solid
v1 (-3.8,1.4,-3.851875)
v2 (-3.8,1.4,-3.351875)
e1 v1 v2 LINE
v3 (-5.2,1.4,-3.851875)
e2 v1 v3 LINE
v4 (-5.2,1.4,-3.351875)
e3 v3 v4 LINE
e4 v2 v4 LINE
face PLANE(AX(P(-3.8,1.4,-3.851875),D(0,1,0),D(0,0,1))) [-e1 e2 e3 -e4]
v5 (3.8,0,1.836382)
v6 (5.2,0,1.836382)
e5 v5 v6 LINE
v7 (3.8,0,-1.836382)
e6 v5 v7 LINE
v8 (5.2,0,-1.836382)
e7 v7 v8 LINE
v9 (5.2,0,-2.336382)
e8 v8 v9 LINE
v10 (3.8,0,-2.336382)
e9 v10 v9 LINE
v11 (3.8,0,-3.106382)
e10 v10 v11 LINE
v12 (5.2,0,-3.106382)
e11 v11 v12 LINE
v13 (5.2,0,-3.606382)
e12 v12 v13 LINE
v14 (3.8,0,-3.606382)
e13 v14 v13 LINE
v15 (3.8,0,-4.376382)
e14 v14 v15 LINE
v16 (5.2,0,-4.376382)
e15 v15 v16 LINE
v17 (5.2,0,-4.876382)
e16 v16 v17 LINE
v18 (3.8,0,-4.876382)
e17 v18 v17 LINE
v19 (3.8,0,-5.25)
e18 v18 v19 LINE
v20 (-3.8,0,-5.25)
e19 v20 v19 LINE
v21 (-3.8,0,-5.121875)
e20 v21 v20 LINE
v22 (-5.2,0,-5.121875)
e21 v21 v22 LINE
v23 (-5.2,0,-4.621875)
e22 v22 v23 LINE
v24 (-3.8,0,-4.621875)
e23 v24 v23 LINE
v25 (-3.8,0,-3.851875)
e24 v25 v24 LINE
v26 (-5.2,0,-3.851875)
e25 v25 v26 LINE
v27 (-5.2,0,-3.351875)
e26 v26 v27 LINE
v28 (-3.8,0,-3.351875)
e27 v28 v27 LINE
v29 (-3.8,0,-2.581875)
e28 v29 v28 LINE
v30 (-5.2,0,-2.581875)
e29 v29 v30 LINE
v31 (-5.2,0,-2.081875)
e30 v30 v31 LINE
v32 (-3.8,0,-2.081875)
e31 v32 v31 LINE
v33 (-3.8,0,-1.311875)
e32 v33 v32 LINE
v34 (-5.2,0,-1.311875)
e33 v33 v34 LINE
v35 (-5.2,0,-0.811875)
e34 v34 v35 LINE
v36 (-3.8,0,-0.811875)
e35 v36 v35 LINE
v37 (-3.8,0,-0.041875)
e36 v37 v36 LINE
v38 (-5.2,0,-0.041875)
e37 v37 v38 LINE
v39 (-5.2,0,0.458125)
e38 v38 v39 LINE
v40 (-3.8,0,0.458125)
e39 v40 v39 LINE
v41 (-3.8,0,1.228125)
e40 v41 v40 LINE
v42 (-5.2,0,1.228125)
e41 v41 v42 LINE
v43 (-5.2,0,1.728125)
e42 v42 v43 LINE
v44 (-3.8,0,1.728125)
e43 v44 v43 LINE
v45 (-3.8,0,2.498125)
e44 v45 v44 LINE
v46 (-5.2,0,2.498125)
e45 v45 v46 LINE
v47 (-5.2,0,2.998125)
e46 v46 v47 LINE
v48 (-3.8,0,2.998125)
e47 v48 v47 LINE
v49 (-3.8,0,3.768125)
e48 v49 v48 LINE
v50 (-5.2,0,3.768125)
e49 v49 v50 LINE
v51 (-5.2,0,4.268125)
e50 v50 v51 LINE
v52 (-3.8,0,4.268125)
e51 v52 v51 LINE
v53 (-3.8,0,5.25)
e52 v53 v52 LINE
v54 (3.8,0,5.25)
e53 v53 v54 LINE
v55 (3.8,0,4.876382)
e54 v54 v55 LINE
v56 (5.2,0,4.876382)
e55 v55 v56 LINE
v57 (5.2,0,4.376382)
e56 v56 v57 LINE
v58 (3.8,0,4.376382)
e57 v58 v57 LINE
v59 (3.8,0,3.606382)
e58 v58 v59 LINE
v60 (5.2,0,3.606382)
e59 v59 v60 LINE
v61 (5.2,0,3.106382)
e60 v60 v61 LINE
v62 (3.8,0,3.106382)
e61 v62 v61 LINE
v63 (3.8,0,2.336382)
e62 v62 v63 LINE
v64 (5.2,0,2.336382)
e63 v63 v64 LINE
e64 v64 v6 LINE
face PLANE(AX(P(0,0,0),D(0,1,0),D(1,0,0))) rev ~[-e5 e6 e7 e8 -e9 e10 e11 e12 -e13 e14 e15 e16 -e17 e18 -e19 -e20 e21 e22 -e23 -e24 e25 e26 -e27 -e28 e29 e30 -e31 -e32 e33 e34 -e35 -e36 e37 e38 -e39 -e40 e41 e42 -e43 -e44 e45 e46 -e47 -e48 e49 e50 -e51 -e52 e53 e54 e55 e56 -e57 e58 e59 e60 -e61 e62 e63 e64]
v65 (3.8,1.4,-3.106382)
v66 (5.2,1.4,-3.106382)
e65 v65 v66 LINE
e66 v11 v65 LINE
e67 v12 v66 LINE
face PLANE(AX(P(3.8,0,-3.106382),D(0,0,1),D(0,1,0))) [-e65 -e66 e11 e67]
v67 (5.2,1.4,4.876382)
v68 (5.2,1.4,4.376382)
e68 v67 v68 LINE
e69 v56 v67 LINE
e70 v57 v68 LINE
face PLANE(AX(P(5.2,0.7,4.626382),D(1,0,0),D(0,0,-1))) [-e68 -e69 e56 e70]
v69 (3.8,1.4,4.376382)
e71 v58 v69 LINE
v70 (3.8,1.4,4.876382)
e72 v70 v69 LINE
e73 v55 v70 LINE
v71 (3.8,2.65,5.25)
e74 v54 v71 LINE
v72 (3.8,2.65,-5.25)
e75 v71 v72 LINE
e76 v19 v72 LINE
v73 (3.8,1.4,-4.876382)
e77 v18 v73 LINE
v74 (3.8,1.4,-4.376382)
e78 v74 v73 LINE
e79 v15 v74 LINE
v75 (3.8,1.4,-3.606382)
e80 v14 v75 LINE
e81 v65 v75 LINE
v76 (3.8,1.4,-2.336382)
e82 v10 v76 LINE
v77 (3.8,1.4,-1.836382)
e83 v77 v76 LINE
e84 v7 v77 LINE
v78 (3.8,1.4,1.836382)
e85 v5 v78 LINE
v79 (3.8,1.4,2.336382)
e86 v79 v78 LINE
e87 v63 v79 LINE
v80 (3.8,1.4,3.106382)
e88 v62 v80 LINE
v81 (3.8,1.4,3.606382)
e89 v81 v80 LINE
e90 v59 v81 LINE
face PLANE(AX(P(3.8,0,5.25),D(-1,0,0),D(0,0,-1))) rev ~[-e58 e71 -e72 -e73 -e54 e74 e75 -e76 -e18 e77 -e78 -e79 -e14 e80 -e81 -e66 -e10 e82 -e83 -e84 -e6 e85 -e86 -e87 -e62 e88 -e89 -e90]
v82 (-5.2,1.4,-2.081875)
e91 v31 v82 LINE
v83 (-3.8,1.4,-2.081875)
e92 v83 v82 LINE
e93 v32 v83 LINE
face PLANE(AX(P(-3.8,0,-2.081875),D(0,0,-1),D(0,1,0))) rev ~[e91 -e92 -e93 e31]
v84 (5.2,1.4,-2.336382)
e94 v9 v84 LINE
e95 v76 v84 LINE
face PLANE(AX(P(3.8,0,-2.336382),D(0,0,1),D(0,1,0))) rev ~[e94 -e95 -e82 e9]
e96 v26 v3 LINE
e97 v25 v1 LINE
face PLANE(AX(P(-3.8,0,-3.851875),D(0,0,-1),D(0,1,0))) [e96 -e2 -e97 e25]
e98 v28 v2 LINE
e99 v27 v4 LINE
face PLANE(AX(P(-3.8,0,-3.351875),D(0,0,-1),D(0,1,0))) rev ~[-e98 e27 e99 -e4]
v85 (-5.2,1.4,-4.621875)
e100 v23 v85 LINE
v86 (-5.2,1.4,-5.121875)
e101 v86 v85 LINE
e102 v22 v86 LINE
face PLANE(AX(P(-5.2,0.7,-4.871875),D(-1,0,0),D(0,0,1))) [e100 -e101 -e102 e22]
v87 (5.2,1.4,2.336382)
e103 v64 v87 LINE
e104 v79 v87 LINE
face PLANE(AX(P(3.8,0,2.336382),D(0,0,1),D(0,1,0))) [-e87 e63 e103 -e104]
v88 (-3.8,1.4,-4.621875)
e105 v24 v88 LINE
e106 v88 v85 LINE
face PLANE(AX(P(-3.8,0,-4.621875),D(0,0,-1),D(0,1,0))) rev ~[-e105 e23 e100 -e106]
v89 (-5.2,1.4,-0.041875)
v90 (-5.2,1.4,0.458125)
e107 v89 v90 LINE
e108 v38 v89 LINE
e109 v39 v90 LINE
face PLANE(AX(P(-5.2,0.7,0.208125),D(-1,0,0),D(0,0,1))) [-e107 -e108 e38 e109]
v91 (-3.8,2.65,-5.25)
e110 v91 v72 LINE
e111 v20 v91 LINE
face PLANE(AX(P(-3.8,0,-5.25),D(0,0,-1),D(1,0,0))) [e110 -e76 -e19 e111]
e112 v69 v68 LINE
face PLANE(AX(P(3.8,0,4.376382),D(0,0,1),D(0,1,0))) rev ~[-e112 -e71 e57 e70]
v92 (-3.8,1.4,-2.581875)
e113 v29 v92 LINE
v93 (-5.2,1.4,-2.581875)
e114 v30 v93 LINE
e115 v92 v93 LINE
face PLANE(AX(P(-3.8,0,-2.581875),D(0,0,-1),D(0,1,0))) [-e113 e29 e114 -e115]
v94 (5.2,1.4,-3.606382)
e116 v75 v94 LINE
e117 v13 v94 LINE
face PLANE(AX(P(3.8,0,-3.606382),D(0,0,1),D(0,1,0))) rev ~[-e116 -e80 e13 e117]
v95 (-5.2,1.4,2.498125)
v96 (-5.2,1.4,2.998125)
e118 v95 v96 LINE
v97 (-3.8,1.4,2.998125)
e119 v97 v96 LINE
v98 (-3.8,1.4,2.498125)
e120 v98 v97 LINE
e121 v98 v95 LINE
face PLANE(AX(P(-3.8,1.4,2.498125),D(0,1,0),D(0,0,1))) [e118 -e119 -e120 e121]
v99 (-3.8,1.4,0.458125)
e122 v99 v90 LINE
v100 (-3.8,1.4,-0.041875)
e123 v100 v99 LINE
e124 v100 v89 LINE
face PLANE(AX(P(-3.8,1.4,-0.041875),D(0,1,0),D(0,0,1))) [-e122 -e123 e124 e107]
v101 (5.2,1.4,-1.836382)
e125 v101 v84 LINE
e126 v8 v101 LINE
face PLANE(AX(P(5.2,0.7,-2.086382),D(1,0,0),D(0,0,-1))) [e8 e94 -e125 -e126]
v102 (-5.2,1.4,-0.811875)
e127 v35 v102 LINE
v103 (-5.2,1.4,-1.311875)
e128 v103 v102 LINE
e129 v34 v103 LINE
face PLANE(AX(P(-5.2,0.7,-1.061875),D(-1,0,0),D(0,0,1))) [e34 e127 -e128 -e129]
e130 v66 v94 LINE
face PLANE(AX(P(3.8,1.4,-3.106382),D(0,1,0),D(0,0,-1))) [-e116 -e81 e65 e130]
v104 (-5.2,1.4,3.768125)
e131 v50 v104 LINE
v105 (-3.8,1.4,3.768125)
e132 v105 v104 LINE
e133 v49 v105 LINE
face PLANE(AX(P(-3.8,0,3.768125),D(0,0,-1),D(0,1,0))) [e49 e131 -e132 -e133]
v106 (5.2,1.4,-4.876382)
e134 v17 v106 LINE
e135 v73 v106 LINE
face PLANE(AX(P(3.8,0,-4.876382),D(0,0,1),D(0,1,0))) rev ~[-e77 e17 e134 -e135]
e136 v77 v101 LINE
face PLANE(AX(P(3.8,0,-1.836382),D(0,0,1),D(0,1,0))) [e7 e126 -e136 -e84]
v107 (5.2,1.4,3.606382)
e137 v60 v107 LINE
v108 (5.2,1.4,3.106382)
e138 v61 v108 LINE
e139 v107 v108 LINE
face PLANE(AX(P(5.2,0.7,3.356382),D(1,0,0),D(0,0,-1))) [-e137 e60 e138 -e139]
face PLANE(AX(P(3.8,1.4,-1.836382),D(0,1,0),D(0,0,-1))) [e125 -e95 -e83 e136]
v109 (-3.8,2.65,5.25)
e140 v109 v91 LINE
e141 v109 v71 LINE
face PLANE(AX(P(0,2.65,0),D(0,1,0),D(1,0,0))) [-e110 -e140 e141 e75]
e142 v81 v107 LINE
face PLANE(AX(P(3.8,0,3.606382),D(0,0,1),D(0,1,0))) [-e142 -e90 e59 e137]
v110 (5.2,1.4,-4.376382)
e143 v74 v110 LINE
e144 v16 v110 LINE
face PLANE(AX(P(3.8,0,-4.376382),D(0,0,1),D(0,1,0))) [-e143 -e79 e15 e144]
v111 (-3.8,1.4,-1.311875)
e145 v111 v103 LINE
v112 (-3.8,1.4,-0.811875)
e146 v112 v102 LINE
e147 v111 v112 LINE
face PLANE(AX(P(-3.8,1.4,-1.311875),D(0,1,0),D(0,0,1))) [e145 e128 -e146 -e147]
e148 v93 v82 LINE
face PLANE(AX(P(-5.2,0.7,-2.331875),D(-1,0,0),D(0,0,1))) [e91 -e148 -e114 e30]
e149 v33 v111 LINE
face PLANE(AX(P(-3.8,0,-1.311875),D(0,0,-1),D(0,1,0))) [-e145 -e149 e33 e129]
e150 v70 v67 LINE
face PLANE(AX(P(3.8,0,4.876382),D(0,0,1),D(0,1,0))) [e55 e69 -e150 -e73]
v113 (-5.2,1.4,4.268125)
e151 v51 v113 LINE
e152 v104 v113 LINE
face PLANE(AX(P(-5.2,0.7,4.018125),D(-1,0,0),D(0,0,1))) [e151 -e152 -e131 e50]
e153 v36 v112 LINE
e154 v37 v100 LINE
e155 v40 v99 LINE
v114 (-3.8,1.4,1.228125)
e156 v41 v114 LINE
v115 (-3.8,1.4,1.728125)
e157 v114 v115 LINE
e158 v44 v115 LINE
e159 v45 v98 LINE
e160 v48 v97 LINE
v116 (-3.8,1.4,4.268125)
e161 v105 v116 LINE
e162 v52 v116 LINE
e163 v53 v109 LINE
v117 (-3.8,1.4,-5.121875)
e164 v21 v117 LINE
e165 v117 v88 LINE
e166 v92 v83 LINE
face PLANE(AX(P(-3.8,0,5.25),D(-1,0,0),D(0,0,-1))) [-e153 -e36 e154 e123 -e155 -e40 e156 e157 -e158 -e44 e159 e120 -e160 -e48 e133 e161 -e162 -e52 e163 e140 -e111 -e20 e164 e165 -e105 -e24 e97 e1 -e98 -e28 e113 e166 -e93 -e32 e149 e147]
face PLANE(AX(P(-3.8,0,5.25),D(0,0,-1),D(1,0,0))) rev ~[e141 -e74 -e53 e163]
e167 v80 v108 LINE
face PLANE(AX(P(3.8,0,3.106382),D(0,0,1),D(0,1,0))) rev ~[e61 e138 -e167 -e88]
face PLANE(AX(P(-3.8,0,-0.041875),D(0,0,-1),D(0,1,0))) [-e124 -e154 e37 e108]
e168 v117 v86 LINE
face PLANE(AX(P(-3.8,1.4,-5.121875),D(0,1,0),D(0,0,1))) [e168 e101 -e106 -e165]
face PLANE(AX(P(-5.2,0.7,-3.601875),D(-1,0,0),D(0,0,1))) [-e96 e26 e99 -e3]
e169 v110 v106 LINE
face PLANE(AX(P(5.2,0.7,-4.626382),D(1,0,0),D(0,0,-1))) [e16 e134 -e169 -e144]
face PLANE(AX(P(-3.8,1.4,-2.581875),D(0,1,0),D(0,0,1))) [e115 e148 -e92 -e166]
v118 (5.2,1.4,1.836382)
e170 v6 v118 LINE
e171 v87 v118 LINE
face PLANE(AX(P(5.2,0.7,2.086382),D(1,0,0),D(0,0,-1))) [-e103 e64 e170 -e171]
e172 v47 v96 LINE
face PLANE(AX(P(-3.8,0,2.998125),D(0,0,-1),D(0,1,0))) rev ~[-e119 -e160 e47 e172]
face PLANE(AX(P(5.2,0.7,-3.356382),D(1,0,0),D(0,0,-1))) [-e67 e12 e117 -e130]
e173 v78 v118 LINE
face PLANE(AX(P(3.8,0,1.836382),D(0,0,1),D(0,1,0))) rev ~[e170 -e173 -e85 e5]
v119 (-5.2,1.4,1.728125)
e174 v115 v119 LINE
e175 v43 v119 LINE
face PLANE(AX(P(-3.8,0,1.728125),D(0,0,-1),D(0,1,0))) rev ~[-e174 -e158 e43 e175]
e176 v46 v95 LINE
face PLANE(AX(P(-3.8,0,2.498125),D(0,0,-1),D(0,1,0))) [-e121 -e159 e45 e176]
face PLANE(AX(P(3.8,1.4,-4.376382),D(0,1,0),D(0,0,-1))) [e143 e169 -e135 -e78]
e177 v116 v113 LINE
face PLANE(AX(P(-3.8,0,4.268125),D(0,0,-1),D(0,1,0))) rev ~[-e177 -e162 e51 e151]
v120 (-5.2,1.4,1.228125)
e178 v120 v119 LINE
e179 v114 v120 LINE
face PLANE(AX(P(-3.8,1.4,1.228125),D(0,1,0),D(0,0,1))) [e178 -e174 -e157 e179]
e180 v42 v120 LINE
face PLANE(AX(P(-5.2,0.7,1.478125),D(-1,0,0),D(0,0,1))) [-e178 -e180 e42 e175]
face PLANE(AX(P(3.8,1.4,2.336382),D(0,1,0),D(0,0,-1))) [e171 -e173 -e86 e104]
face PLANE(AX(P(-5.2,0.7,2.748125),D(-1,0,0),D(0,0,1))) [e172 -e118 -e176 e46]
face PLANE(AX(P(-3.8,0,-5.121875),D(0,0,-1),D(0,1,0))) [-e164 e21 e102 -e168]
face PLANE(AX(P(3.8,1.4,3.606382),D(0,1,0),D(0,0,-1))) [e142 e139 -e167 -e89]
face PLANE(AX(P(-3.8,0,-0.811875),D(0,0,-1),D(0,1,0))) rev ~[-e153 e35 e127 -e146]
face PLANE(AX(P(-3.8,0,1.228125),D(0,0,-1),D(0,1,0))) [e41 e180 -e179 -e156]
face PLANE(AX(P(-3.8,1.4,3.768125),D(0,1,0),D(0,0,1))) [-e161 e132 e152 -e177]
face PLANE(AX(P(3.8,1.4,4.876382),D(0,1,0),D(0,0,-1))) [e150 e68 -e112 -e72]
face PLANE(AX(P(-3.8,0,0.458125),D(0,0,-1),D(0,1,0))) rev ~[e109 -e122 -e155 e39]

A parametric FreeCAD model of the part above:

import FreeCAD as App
import Part
import Sketcher

V = App.Vector
Q = App.Units.Quantity


def add_polygon(sketch, points):
    """Adds a closed chain of lines whose ends are joined by coincident constraints."""
    first, n = sketch.GeometryCount, len(points)
    for a, b in zip(points, points[1:] + points[:1]):
        sketch.addGeometry(Part.LineSegment(App.Vector(*a, 0), App.Vector(*b, 0)), False)
    for i in range(n):
        sketch.addConstraint(Sketcher.Constraint("Coincident", first + i, 2, first + (i + 1) % n, 1))

doc = App.newDocument("Part")
body = doc.addObject("PartDesign::Body", "Body")

# Sketch on XZ plane
sketch1 = doc.addObject("Sketcher::SketchObject", "Sketch")
body.addObject(sketch1)
sketch1.AttachmentSupport = (doc.XZ_Plane, [""])
sketch1.MapMode = "FlatFace"
add_polygon(sketch1, [(-4, -5), (-4, 5), (4, 5), (4, -5)])  # lines 0-3
sketch1.addConstraint(Sketcher.Constraint("Vertical", 0))
sketch1.addConstraint(Sketcher.Constraint("Horizontal", 1))
sketch1.addConstraint(Sketcher.Constraint("Vertical", 2))
sketch1.addConstraint(Sketcher.Constraint("Horizontal", 3))
sketch1.addConstraint(Sketcher.Constraint("Symmetric", 0, 2, 2, 2, -1, 1))
sketch1.addConstraint(Sketcher.Constraint("DistanceX", 1, 1, 1, 2, Q("7.6 mm")))
sketch1.addConstraint(Sketcher.Constraint("DistanceY", 0, 1, 0, 2, Q("10.5 mm")))
pad1 = doc.addObject("PartDesign::Pad", "Pad")
body.addObject(pad1)
pad1.Profile = sketch1
pad1.Length = 2.65
pad1.Reversed = True

# Sketch on YZ plane
sketch2 = doc.addObject("Sketcher::SketchObject", "Sketch001")
body.addObject(sketch2)
sketch2.AttachmentSupport = (doc.YZ_Plane, [""])
sketch2.MapMode = "FlatFace"
sketch2.AttachmentOffset = App.Placement(V(0, 0, -3.8), App.Rotation())
add_polygon(sketch2, [(1.4, -5.12), (0, -5.12), (0, -4.62), (1.4, -4.62)])  # lines 0-3
add_polygon(sketch2, [(1.4, -3.85), (0, -3.85), (0, -3.35), (1.4, -3.35)])  # lines 4-7
add_polygon(sketch2, [(1.4, -2.58), (0, -2.58), (0, -2.08), (1.4, -2.08)])  # lines 8-11
add_polygon(sketch2, [(1.4, -1.31), (0, -1.31), (0, -0.81), (1.4, -0.81)])  # lines 12-15
add_polygon(sketch2, [(1.4, -0.04), (0, -0.04), (0, 0.46), (1.4, 0.46)])  # lines 16-19
add_polygon(sketch2, [(1.4, 1.23), (0, 1.23), (0, 1.73), (1.4, 1.73)])  # lines 20-23
add_polygon(sketch2, [(1.4, 2.5), (0, 2.5), (0, 3), (1.4, 3)])  # lines 24-27
add_polygon(sketch2, [(1.4, 3.77), (0, 3.77), (0, 4.27), (1.4, 4.27)])  # lines 28-31
sketch2.addConstraint(Sketcher.Constraint("Horizontal", 0))
sketch2.addConstraint(Sketcher.Constraint("Vertical", 1))
sketch2.addConstraint(Sketcher.Constraint("Horizontal", 2))
sketch2.addConstraint(Sketcher.Constraint("Vertical", 3))
sketch2.addConstraint(Sketcher.Constraint("Horizontal", 4))
sketch2.addConstraint(Sketcher.Constraint("Vertical", 5))
sketch2.addConstraint(Sketcher.Constraint("Horizontal", 6))
sketch2.addConstraint(Sketcher.Constraint("Vertical", 7))
sketch2.addConstraint(Sketcher.Constraint("Horizontal", 8))
sketch2.addConstraint(Sketcher.Constraint("Vertical", 9))
sketch2.addConstraint(Sketcher.Constraint("Horizontal", 10))
sketch2.addConstraint(Sketcher.Constraint("Vertical", 11))
sketch2.addConstraint(Sketcher.Constraint("Horizontal", 12))
sketch2.addConstraint(Sketcher.Constraint("Vertical", 13))
sketch2.addConstraint(Sketcher.Constraint("Horizontal", 14))
sketch2.addConstraint(Sketcher.Constraint("Vertical", 15))
sketch2.addConstraint(Sketcher.Constraint("Horizontal", 16))
sketch2.addConstraint(Sketcher.Constraint("Vertical", 17))
sketch2.addConstraint(Sketcher.Constraint("Horizontal", 18))
sketch2.addConstraint(Sketcher.Constraint("Vertical", 19))
sketch2.addConstraint(Sketcher.Constraint("Horizontal", 20))
sketch2.addConstraint(Sketcher.Constraint("Vertical", 21))
sketch2.addConstraint(Sketcher.Constraint("Horizontal", 22))
sketch2.addConstraint(Sketcher.Constraint("Vertical", 23))
sketch2.addConstraint(Sketcher.Constraint("Horizontal", 24))
sketch2.addConstraint(Sketcher.Constraint("Vertical", 25))
sketch2.addConstraint(Sketcher.Constraint("Horizontal", 26))
sketch2.addConstraint(Sketcher.Constraint("Vertical", 27))
sketch2.addConstraint(Sketcher.Constraint("Horizontal", 28))
sketch2.addConstraint(Sketcher.Constraint("Vertical", 29))
sketch2.addConstraint(Sketcher.Constraint("Horizontal", 30))
sketch2.addConstraint(Sketcher.Constraint("Vertical", 31))
sketch2.addConstraint(Sketcher.Constraint("PointOnObject", 0, 2, -2))
sketch2.addConstraint(Sketcher.Constraint("PointOnObject", 4, 2, -2))
sketch2.addConstraint(Sketcher.Constraint("PointOnObject", 8, 2, -2))
sketch2.addConstraint(Sketcher.Constraint("PointOnObject", 12, 2, -2))
sketch2.addConstraint(Sketcher.Constraint("PointOnObject", 16, 2, -2))
sketch2.addConstraint(Sketcher.Constraint("PointOnObject", 20, 2, -2))
sketch2.addConstraint(Sketcher.Constraint("PointOnObject", 24, 2, -2))
sketch2.addConstraint(Sketcher.Constraint("PointOnObject", 28, 2, -2))
sketch2.addConstraint(Sketcher.Constraint("Vertical", 3, 2, 6, 2))
sketch2.addConstraint(Sketcher.Constraint("Vertical", 7, 2, 10, 2))
sketch2.addConstraint(Sketcher.Constraint("Vertical", 11, 2, 14, 2))
sketch2.addConstraint(Sketcher.Constraint("Vertical", 15, 2, 18, 2))
sketch2.addConstraint(Sketcher.Constraint("Vertical", 19, 2, 22, 2))
sketch2.addConstraint(Sketcher.Constraint("Vertical", 23, 2, 26, 2))
sketch2.addConstraint(Sketcher.Constraint("Vertical", 27, 2, 30, 2))
sketch2.addConstraint(Sketcher.Constraint("Equal", 3, 5))
sketch2.addConstraint(Sketcher.Constraint("Equal", 7, 9))
sketch2.addConstraint(Sketcher.Constraint("Equal", 11, 13))
sketch2.addConstraint(Sketcher.Constraint("Equal", 15, 17))
sketch2.addConstraint(Sketcher.Constraint("Equal", 19, 21))
sketch2.addConstraint(Sketcher.Constraint("Equal", 23, 25))
sketch2.addConstraint(Sketcher.Constraint("Equal", 27, 29))
sketch2.addConstraint(Sketcher.Constraint("DistanceX", 0, 2, 0, 1, Q("1.4 mm")))
sketch2.addConstraint(Sketcher.Constraint("DistanceY", 1, 1, 1, 2, Q("0.5 mm")))
sketch2.addConstraint(Sketcher.Constraint("DistanceY", 1, 2, 4, 2, Q("0.77 mm")))
sketch2.addConstraint(Sketcher.Constraint("DistanceY", 5, 2, 8, 2, Q("0.77 mm")))
sketch2.addConstraint(Sketcher.Constraint("DistanceY", 9, 2, 12, 2, Q("0.77 mm")))
sketch2.addConstraint(Sketcher.Constraint("DistanceY", 13, 2, 16, 2, Q("0.77 mm")))
sketch2.addConstraint(Sketcher.Constraint("DistanceY", 17, 2, 20, 2, Q("0.77 mm")))
sketch2.addConstraint(Sketcher.Constraint("DistanceY", 21, 2, 24, 2, Q("0.77 mm")))
sketch2.addConstraint(Sketcher.Constraint("DistanceY", 25, 2, 28, 2, Q("0.77 mm")))
sketch2.addConstraint(Sketcher.Constraint("DistanceY", 0, 2, -1, 1, Q("5.121875 mm")))
pad2 = doc.addObject("PartDesign::Pad", "Pad001")
body.addObject(pad2)
pad2.Profile = sketch2
pad2.Length = 1.4
pad2.Reversed = True

# Sketch on YZ plane
sketch3 = doc.addObject("Sketcher::SketchObject", "Sketch002")
body.addObject(sketch3)
sketch3.AttachmentSupport = (doc.YZ_Plane, [""])
sketch3.MapMode = "FlatFace"
sketch3.AttachmentOffset = App.Placement(V(0, 0, 3.8), App.Rotation())
add_polygon(sketch3, [(1.4, 4.9), (0, 4.9), (0, 4.4), (1.4, 4.4)])  # lines 0-3
add_polygon(sketch3, [(1.4, 3.6), (0, 3.6), (0, 3.1), (1.4, 3.1)])  # lines 4-7
add_polygon(sketch3, [(1.4, 2.3), (0, 2.3), (0, 1.8), (1.4, 1.8)])  # lines 8-11
add_polygon(sketch3, [(1.4, -1.8), (0, -1.8), (0, -2.3), (1.4, -2.3)])  # lines 12-15
add_polygon(sketch3, [(1.4, -3.1), (0, -3.1), (0, -3.6), (1.4, -3.6)])  # lines 16-19
add_polygon(sketch3, [(1.4, -4.4), (0, -4.4), (0, -4.9), (1.4, -4.9)])  # lines 20-23
sketch3.addConstraint(Sketcher.Constraint("Horizontal", 0))
sketch3.addConstraint(Sketcher.Constraint("Vertical", 1))
sketch3.addConstraint(Sketcher.Constraint("Horizontal", 2))
sketch3.addConstraint(Sketcher.Constraint("Vertical", 3))
sketch3.addConstraint(Sketcher.Constraint("Horizontal", 4))
sketch3.addConstraint(Sketcher.Constraint("Vertical", 5))
sketch3.addConstraint(Sketcher.Constraint("Horizontal", 6))
sketch3.addConstraint(Sketcher.Constraint("Vertical", 7))
sketch3.addConstraint(Sketcher.Constraint("Horizontal", 8))
sketch3.addConstraint(Sketcher.Constraint("Vertical", 9))
sketch3.addConstraint(Sketcher.Constraint("Horizontal", 10))
sketch3.addConstraint(Sketcher.Constraint("Vertical", 11))
sketch3.addConstraint(Sketcher.Constraint("Horizontal", 12))
sketch3.addConstraint(Sketcher.Constraint("Vertical", 13))
sketch3.addConstraint(Sketcher.Constraint("Horizontal", 14))
sketch3.addConstraint(Sketcher.Constraint("Vertical", 15))
sketch3.addConstraint(Sketcher.Constraint("Horizontal", 16))
sketch3.addConstraint(Sketcher.Constraint("Vertical", 17))
sketch3.addConstraint(Sketcher.Constraint("Horizontal", 18))
sketch3.addConstraint(Sketcher.Constraint("Vertical", 19))
sketch3.addConstraint(Sketcher.Constraint("Horizontal", 20))
sketch3.addConstraint(Sketcher.Constraint("Vertical", 21))
sketch3.addConstraint(Sketcher.Constraint("Horizontal", 22))
sketch3.addConstraint(Sketcher.Constraint("Vertical", 23))
sketch3.addConstraint(Sketcher.Constraint("Symmetric", 9, 2, 12, 2, -1, 1))
sketch3.addConstraint(Sketcher.Constraint("Symmetric", 5, 2, 16, 2, -1, 1))
sketch3.addConstraint(Sketcher.Constraint("Symmetric", 1, 2, 20, 2, -1, 1))
sketch3.addConstraint(Sketcher.Constraint("Symmetric", 8, 2, 13, 2, -1))
sketch3.addConstraint(Sketcher.Constraint("Symmetric", 4, 2, 17, 2, -1))
sketch3.addConstraint(Sketcher.Constraint("Symmetric", 0, 2, 21, 2, -1))
sketch3.addConstraint(Sketcher.Constraint("Vertical", 3, 2, 6, 2))
sketch3.addConstraint(Sketcher.Constraint("Vertical", 7, 2, 10, 2))
sketch3.addConstraint(Sketcher.Constraint("Vertical", 11, 2, 14, 2))
sketch3.addConstraint(Sketcher.Constraint("Vertical", 15, 2, 18, 2))
sketch3.addConstraint(Sketcher.Constraint("Vertical", 19, 2, 22, 2))
sketch3.addConstraint(Sketcher.Constraint("Equal", 3, 5))
sketch3.addConstraint(Sketcher.Constraint("Equal", 7, 9))
sketch3.addConstraint(Sketcher.Constraint("DistanceX", 0, 2, 0, 1, Q("1.4 mm")))
sketch3.addConstraint(Sketcher.Constraint("DistanceY", 1, 2, 1, 1, Q("0.5 mm")))
sketch3.addConstraint(Sketcher.Constraint("DistanceY", 4, 2, 1, 2, Q("0.77 mm")))
sketch3.addConstraint(Sketcher.Constraint("DistanceY", 8, 2, 5, 2, Q("0.77 mm")))
sketch3.addConstraint(Sketcher.Constraint("DistanceY", -1, 1, 0, 2, Q("4.876382 mm")))
pad3 = doc.addObject("PartDesign::Pad", "Pad002")
body.addObject(pad3)
pad3.Profile = sketch3
pad3.Length = 1.4

doc.recompute()
